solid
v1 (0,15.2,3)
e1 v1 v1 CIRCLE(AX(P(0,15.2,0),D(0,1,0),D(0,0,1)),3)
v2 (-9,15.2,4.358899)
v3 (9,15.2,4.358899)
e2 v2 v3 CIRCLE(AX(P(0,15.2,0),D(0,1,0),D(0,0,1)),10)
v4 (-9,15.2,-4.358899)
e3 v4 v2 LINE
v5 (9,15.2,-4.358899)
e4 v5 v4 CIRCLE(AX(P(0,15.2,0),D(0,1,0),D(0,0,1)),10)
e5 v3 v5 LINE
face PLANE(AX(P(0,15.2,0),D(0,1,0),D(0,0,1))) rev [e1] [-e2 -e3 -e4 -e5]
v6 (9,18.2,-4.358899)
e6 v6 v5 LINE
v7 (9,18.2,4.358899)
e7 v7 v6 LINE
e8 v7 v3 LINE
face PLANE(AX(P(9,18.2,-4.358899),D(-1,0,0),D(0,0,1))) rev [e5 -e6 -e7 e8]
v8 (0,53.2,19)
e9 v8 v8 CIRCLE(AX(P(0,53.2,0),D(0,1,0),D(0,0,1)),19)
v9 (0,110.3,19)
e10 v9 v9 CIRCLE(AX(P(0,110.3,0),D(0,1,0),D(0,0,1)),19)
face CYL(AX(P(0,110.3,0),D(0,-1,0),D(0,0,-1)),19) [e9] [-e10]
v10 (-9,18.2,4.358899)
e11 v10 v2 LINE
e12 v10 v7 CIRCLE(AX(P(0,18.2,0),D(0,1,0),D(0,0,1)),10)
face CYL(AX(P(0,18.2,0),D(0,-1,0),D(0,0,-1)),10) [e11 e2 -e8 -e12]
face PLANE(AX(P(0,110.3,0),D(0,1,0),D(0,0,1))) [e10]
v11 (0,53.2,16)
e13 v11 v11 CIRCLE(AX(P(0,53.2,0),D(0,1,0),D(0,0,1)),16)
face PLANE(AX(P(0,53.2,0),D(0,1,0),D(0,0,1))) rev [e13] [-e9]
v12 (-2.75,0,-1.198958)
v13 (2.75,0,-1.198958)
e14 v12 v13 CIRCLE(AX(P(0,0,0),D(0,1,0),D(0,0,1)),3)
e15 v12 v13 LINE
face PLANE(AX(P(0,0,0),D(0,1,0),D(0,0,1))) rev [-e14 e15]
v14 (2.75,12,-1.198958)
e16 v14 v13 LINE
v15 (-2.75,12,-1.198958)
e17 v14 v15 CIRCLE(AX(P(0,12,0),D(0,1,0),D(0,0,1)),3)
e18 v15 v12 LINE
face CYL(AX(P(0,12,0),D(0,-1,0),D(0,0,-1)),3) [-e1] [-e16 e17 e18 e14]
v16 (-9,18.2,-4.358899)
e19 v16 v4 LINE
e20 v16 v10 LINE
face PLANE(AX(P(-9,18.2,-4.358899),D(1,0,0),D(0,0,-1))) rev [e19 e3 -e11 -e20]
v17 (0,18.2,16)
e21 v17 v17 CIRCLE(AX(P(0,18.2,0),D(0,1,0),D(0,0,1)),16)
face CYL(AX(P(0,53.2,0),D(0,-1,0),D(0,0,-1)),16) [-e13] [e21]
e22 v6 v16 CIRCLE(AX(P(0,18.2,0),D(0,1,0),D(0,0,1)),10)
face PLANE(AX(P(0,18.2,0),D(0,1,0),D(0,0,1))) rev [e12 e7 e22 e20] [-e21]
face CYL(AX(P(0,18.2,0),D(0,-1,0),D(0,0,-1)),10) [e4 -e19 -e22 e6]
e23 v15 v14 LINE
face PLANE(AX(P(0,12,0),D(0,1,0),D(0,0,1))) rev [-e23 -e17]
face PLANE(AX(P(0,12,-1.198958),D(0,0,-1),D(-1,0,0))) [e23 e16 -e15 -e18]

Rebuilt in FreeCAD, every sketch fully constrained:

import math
import FreeCAD as App
import Part
import Sketcher
from FreeCAD import Vector

doc = App.newDocument("Part")
body = doc.addObject("PartDesign::Body", "Body")

# Sketch on XZ plane
sketch1 = body.newObject("Sketcher::SketchObject", "Sketch")
sketch1.AttachmentSupport = (doc.getObject("XZ_Plane"), [""])
sketch1.MapMode = "FlatFace"
sketch1.addGeometry(Part.LineSegment(Vector(2.75, -1.198958, 0), Vector(-2.75, -1.198958, 0)), False)
sketch1.addGeometry(Part.ArcOfCircle(Part.Circle(Vector(0, 0, 0), Vector(0, 0, 1), 3), math.radians(0), math.radians(203.556464)), False)
sketch1.addGeometry(Part.ArcOfCircle(Part.Circle(Vector(0, 0, 0), Vector(0, 0, 1), 3), math.radians(-23.556464), math.radians(0)), False)
sketch1.addConstraint(Sketcher.Constraint("Coincident", 0, 2, 1, 2))
sketch1.addConstraint(Sketcher.Constraint("Tangent", 1, 1, 2, 2))
sketch1.addConstraint(Sketcher.Constraint("Coincident", 2, 1, 0, 1))
sketch1.addConstraint(Sketcher.Constraint("Horizontal", 0))
sketch1.addConstraint(Sketcher.Constraint("Coincident", 1, 3, -1, 1))
sketch1.addConstraint(Sketcher.Constraint("Equal", 1, 2))
sketch1.addConstraint(Sketcher.Constraint("PointOnObject", 1, 1, -1))
sketch1.addConstraint(Sketcher.Constraint("Radius", 1, 3.0))
sketch1.addConstraint(Sketcher.Constraint("DistanceX", 0, 2, 0, 1, 5.5))
pad1 = body.newObject("PartDesign::Pad", "Pad")
pad1.Profile = sketch1
pad1.Length = 12
pad1.Reversed = True

# Sketch on XZ plane
sketch2 = body.newObject("Sketcher::SketchObject", "Sketch001")
sketch2.AttachmentSupport = (doc.getObject("XZ_Plane"), [""])
sketch2.MapMode = "FlatFace"
sketch2.AttachmentOffset = App.Placement(Vector(0, 0, -12), App.Rotation())
sketch2.addGeometry(Part.ArcOfCircle(Part.Circle(Vector(0, 0, 0), Vector(0, 0, 1), 3), math.radians(-23.556464), math.radians(0)), False)
sketch2.addGeometry(Part.ArcOfCircle(Part.Circle(Vector(0, 0, 0), Vector(0, 0, 1), 3), math.radians(-156.443536), math.radians(-23.556464)), False)
sketch2.addGeometry(Part.ArcOfCircle(Part.Circle(Vector(0, 0, 0), Vector(0, 0, 1), 3), math.radians(0), math.radians(203.556464)), False)
sketch2.addConstraint(Sketcher.Constraint("Tangent", 0, 1, 1, 2))
sketch2.addConstraint(Sketcher.Constraint("Tangent", 1, 1, 2, 2))
sketch2.addConstraint(Sketcher.Constraint("Tangent", 2, 1, 0, 2))
sketch2.addConstraint(Sketcher.Constraint("Coincident", 0, 3, -1, 1))
sketch2.addConstraint(Sketcher.Constraint("PointOnObject", 2, 1, -1))
sketch2.addConstraint(Sketcher.Constraint("Horizontal", 0, 1, 1, 1))
sketch2.addConstraint(Sketcher.Constraint("Radius", 0, 3.0))
sketch2.addConstraint(Sketcher.Constraint("DistanceX", 1, 1, 0, 1, 5.5))
pad2 = body.newObject("PartDesign::Pad", "Pad001")
pad2.Profile = sketch2
pad2.Length = 3.2
pad2.Reversed = True

# Sketch on XZ plane
sketch3 = body.newObject("Sketcher::SketchObject", "Sketch002")
sketch3.AttachmentSupport = (doc.getObject("XZ_Plane"), [""])
sketch3.MapMode = "FlatFace"
sketch3.AttachmentOffset = App.Placement(Vector(0, 0, -15.2), App.Rotation())
sketch3.addGeometry(Part.LineSegment(Vector(-9, -4.358899, 0), Vector(-9, 4.358899, 0)), False)
sketch3.addGeometry(Part.ArcOfCircle(Part.Circle(Vector(0, 0, 0), Vector(0, 0, 1), 10), math.radians(25.841933), math.radians(154.158067)), False)
sketch3.addGeometry(Part.LineSegment(Vector(9, 4.358899, 0), Vector(9, -4.358899, 0)), False)
sketch3.addGeometry(Part.ArcOfCircle(Part.Circle(Vector(0, 0, 0), Vector(0, 0, 1), 10), math.radians(-154.158067), math.radians(-25.841933)), False)
sketch3.addConstraint(Sketcher.Constraint("Coincident", 0, 2, 1, 2))
sketch3.addConstraint(Sketcher.Constraint("Coincident", 1, 1, 2, 1))
sketch3.addConstraint(Sketcher.Constraint("Coincident", 2, 2, 3, 2))
sketch3.addConstraint(Sketcher.Constraint("Coincident", 3, 1, 0, 1))
sketch3.addConstraint(Sketcher.Constraint("Vertical", 0))
sketch3.addConstraint(Sketcher.Constraint("Vertical", 2))
sketch3.addConstraint(Sketcher.Constraint("Coincident", 1, 3, -1, 1))
sketch3.addConstraint(Sketcher.Constraint("Coincident", 3, 3, -1, 1))
sketch3.addConstraint(Sketcher.Constraint("Equal", 1, 3))
sketch3.addConstraint(Sketcher.Constraint("Horizontal", 0, 2, 1, 1))
sketch3.addConstraint(Sketcher.Constraint("Radius", 1, 10.0))
sketch3.addConstraint(Sketcher.Constraint("DistanceX", 0, 2, -1, 1, 9.0))
pad3 = body.newObject("PartDesign::Pad", "Pad002")
pad3.Profile = sketch3
pad3.Length = 3
pad3.Reversed = True

# Sketch on XZ plane
sketch4 = body.newObject("Sketcher::SketchObject", "Sketch003")
sketch4.AttachmentSupport = (doc.getObject("XZ_Plane"), [""])
sketch4.MapMode = "FlatFace"
sketch4.AttachmentOffset = App.Placement(Vector(0, 0, -18.2), App.Rotation())
sketch4.addGeometry(Part.Circle(Vector(0, 0, 0), Vector(0, 0, 1), 16), False)
sketch4.addConstraint(Sketcher.Constraint("Coincident", 0, 3, -1, 1))
sketch4.addConstraint(Sketcher.Constraint("Diameter", 0, 32.0))
pad4 = body.newObject("PartDesign::Pad", "Pad003")
pad4.Profile = sketch4
pad4.Length = 35
pad4.Reversed = True

# Sketch on XZ plane
sketch5 = body.newObject("Sketcher::SketchObject", "Sketch004")
sketch5.AttachmentSupport = (doc.getObject("XZ_Plane"), [""])
sketch5.MapMode = "FlatFace"
sketch5.AttachmentOffset = App.Placement(Vector(0, 0, -53.2), App.Rotation())
sketch5.addGeometry(Part.Circle(Vector(0, 0, 0), Vector(0, 0, 1), 19), False)
sketch5.addConstraint(Sketcher.Constraint("Coincident", 0, 3, -1, 1))
sketch5.addConstraint(Sketcher.Constraint("Diameter", 0, 38.0))
pad5 = body.newObject("PartDesign::Pad", "Pad004")
pad5.Profile = sketch5
pad5.Length = 57.1
pad5.Reversed = True

doc.recompute()
